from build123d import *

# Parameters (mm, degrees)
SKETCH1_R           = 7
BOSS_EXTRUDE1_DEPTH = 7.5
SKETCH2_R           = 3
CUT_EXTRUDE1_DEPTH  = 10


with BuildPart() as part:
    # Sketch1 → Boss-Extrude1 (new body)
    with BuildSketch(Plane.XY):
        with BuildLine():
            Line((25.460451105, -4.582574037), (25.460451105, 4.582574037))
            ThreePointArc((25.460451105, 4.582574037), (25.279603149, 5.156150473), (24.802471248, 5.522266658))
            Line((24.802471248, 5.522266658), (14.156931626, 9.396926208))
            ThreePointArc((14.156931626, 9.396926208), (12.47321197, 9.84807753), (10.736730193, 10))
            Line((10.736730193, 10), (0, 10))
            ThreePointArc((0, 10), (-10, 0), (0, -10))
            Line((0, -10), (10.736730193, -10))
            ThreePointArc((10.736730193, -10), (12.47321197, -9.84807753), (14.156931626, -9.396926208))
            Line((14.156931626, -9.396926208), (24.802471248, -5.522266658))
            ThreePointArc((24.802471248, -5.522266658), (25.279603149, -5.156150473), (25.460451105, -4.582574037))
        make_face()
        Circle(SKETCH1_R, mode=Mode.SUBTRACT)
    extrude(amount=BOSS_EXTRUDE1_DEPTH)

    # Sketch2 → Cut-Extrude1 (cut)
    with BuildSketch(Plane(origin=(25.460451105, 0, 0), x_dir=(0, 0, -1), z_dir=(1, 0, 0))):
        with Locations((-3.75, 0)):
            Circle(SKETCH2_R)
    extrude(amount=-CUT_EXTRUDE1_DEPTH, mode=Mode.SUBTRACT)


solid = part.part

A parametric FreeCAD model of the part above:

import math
import FreeCAD as App
import Part
import Sketcher

V = App.Vector
Q = App.Units.Quantity

doc = App.newDocument("Part")
body = doc.addObject("PartDesign::Body", "Body")

# Sketch on XY plane
sketch1 = body.newObject("Sketcher::SketchObject", "Sketch")
sketch1.AttachmentSupport = (doc.getObject("XY_Plane"), [""])
sketch1.MapMode = "FlatFace"
sketch1.addGeometry(Part.LineSegment(V(25.460451, -4.582574, 0), V(25.460451, 4.582574, 0)), False)
sketch1.addGeometry(Part.ArcOfCircle(Part.Circle(V(24.460451, 4.582574, 0), V(0, 0, 1), 1), math.radians(0), math.radians(70)), False)
sketch1.addGeometry(Part.LineSegment(V(24.802471, 5.522267, 0), V(14.156932, 9.396926, 0)), False)
sketch1.addGeometry(Part.ArcOfCircle(Part.Circle(V(10.73673, 0, 0), V(0, 0, 1), 10), math.radians(70), math.radians(90)), False)
sketch1.addGeometry(Part.LineSegment(V(10.73673, 10, 0), V(0, 10, 0)), False)
sketch1.addGeometry(Part.ArcOfCircle(Part.Circle(V(0, 0, 0), V(0, 0, 1), 10), math.radians(90), math.radians(270)), False)
sketch1.addGeometry(Part.LineSegment(V(0, -10, 0), V(10.73673, -10, 0)), False)
sketch1.addGeometry(Part.ArcOfCircle(Part.Circle(V(10.73673, 0, 0), V(0, 0, 1), 10), math.radians(-90), math.radians(-70)), False)
sketch1.addGeometry(Part.LineSegment(V(14.156932, -9.396926, 0), V(24.802471, -5.522267, 0)), False)
sketch1.addGeometry(Part.ArcOfCircle(Part.Circle(V(24.460451, -4.582574, 0), V(0, 0, 1), 1), math.radians(-70), math.radians(0)), False)
sketch1.addGeometry(Part.Circle(V(0, 0, 0), V(0, 0, 1), 7), False)
sketch1.addConstraint(Sketcher.Constraint("Tangent", 0, 2, 1, 1))
sketch1.addConstraint(Sketcher.Constraint("Tangent", 1, 2, 2, 1))
sketch1.addConstraint(Sketcher.Constraint("Tangent", 2, 2, 3, 1))
sketch1.addConstraint(Sketcher.Constraint("Tangent", 3, 2, 4, 1))
sketch1.addConstraint(Sketcher.Constraint("Tangent", 4, 2, 5, 1))
sketch1.addConstraint(Sketcher.Constraint("Tangent", 5, 2, 6, 1))
sketch1.addConstraint(Sketcher.Constraint("Tangent", 6, 2, 7, 1))
sketch1.addConstraint(Sketcher.Constraint("Tangent", 7, 2, 8, 1))
sketch1.addConstraint(Sketcher.Constraint("Tangent", 8, 2, 9, 1))
sketch1.addConstraint(Sketcher.Constraint("Tangent", 9, 2, 0, 1))
sketch1.addConstraint(Sketcher.Constraint("Vertical", 0))
sketch1.addConstraint(Sketcher.Constraint("Horizontal", 4))
sketch1.addConstraint(Sketcher.Constraint("Horizontal", 6))
sketch1.addConstraint(Sketcher.Constraint("Coincident", 5, 3, -1, 1))
sketch1.addConstraint(Sketcher.Constraint("Coincident", 10, 3, -1, 1))
sketch1.addConstraint(Sketcher.Constraint("Coincident", 7, 3, 3, 3))
sketch1.addConstraint(Sketcher.Constraint("Equal", 3, 5))
sketch1.addConstraint(Sketcher.Constraint("Equal", 1, 9))
sketch1.addConstraint(Sketcher.Constraint("Vertical", 2, 2, 7, 2))
sketch1.addConstraint(Sketcher.Constraint("Diameter", 10, 14.0))
sketch1.addConstraint(Sketcher.Constraint("Radius", 1, 1.0))
sketch1.addConstraint(Sketcher.Constraint("Radius", 3, 10.0))
sketch1.addConstraint(Sketcher.Constraint("Angle", 2, Q("160 deg")))
sketch1.addConstraint(Sketcher.Constraint("DistanceX", 4, 2, 4, 1, 10.73673))
sketch1.addConstraint(Sketcher.Constraint("DistanceY", 0, 1, 0, 2, 9.165148))
pad1 = body.newObject("PartDesign::Pad", "Pad")
pad1.Profile = sketch1
pad1.Length = 7.5

# Sketch on YZ plane
sketch2 = body.newObject("Sketcher::SketchObject", "Sketch001")
sketch2.AttachmentSupport = (doc.getObject("YZ_Plane"), [""])
sketch2.MapMode = "FlatFace"
sketch2.AttachmentOffset = App.Placement(V(0, 0, 25.460451), App.Rotation())
sketch2.addGeometry(Part.Circle(V(0, 3.75, 0), V(0, 0, 1), 3), False)
sketch2.addConstraint(Sketcher.Constraint("PointOnObject", 0, 3, -2))
sketch2.addConstraint(Sketcher.Constraint("Diameter", 0, 6.0))
sketch2.addConstraint(Sketcher.Constraint("DistanceY", -1, 1, 0, 3, 3.75))
pocket1 = body.newObject("PartDesign::Pocket", "Pocket")
pocket1.Profile = sketch2
pocket1.Length = 10

doc.recompute()
